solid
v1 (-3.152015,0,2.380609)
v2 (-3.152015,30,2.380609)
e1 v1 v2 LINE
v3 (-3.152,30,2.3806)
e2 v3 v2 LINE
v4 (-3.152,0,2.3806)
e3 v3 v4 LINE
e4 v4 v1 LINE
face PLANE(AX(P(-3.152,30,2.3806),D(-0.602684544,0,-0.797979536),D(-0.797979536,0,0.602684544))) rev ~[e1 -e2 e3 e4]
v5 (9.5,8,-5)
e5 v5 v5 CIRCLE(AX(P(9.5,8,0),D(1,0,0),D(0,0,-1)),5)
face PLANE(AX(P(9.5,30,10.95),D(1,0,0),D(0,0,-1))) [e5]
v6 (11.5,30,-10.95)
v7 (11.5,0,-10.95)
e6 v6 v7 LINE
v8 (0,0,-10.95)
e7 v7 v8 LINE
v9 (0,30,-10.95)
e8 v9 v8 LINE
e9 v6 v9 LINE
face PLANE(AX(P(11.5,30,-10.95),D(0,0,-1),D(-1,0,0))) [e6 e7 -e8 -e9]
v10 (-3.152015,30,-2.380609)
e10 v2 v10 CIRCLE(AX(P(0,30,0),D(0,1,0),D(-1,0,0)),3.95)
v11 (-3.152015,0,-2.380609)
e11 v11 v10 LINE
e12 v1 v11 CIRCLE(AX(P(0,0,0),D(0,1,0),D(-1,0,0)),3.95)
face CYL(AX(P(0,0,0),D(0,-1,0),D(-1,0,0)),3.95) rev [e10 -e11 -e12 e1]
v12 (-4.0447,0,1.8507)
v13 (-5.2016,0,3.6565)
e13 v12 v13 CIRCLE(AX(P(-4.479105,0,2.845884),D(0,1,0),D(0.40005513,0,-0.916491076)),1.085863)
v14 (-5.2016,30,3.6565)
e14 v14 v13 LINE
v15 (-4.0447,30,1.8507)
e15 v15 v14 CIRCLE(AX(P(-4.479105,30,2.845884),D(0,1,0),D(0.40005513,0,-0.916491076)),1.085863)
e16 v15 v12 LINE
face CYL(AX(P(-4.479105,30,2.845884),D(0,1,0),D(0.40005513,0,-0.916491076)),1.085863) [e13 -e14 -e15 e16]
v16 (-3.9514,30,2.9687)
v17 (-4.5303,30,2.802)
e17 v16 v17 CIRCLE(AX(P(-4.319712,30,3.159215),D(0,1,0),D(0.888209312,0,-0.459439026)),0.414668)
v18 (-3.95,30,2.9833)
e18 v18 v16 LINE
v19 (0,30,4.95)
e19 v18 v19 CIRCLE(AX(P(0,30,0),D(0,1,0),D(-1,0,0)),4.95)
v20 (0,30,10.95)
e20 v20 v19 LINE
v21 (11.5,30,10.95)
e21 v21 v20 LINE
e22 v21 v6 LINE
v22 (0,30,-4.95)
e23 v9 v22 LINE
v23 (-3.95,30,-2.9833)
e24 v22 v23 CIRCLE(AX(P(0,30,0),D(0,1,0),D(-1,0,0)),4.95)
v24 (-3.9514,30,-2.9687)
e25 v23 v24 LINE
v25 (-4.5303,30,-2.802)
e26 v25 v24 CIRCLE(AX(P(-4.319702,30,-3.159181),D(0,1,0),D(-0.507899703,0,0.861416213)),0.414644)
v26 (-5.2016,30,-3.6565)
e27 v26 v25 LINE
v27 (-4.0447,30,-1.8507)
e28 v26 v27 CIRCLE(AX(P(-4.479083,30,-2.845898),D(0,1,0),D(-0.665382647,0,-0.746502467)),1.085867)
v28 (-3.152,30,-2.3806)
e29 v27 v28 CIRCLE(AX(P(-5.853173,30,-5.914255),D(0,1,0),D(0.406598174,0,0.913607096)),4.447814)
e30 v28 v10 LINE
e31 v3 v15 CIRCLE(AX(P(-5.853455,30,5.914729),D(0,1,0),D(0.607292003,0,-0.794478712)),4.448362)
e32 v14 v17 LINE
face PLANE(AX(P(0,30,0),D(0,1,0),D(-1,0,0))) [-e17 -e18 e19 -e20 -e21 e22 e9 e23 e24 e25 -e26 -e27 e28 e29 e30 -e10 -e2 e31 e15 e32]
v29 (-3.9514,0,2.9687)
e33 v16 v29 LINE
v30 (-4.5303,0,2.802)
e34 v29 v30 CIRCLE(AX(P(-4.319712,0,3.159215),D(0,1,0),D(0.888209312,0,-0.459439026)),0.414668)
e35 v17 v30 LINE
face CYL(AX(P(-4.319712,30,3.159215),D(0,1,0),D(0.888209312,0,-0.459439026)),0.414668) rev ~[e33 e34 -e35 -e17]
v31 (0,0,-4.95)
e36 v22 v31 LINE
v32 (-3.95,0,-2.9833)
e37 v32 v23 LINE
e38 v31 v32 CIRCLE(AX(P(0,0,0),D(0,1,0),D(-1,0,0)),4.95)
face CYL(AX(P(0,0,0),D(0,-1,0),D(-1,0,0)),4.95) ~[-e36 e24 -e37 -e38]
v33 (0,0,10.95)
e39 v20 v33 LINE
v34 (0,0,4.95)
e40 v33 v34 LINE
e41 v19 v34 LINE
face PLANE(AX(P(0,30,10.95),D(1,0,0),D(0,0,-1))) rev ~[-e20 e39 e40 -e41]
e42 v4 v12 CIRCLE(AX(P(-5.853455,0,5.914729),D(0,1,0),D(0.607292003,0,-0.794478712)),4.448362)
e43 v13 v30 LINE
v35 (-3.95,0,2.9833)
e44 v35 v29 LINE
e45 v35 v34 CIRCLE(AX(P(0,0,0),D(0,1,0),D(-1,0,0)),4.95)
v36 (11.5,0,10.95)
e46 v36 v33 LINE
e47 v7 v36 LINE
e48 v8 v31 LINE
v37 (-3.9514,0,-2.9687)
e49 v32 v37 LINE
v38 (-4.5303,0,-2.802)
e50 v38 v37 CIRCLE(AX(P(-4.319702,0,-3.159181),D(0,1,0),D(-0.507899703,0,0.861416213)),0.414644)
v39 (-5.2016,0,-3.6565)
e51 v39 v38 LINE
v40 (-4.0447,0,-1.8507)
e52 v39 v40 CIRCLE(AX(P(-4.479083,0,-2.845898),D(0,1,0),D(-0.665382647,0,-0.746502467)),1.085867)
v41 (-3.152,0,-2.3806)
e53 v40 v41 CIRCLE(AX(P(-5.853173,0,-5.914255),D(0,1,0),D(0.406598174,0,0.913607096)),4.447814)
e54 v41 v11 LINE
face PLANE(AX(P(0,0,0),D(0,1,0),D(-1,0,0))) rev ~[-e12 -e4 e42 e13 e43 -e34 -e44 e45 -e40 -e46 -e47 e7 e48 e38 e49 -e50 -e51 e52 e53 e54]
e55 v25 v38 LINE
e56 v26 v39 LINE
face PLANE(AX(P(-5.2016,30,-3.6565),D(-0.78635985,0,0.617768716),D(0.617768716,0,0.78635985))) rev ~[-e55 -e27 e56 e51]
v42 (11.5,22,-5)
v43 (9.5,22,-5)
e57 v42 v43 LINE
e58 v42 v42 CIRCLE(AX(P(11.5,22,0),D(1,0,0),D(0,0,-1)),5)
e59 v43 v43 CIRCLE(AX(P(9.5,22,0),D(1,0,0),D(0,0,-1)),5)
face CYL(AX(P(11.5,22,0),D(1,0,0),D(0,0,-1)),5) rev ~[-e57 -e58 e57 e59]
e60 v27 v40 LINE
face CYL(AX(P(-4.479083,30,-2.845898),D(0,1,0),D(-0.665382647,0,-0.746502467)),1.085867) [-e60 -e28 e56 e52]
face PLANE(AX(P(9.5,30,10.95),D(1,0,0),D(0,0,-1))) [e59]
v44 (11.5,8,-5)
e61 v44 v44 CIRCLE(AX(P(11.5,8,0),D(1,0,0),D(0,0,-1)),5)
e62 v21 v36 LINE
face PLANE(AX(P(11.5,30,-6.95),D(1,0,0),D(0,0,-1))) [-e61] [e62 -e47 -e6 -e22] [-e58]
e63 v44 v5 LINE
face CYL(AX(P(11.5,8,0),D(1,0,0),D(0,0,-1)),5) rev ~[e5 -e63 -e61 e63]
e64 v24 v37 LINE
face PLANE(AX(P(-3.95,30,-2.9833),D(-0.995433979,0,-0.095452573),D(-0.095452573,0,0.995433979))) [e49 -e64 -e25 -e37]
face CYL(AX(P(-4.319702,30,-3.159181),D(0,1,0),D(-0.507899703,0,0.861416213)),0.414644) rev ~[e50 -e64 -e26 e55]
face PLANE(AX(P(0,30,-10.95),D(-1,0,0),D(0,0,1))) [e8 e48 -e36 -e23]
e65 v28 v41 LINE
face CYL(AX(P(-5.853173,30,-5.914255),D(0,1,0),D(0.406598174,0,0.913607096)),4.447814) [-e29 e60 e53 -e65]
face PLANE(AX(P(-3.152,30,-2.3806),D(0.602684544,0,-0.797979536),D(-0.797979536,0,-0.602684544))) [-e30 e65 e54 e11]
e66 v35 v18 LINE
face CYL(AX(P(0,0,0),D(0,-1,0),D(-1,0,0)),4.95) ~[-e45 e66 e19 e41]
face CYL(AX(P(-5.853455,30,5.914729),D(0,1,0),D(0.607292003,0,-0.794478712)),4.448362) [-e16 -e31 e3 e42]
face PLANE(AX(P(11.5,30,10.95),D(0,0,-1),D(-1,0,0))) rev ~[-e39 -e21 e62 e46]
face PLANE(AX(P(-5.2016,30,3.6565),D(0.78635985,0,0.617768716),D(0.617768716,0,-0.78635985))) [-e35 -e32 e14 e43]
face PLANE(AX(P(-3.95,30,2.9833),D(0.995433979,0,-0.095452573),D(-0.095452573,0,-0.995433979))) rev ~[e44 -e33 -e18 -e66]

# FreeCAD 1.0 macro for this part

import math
import FreeCAD as App
import Part
import Sketcher
from FreeCAD import Vector
Q = App.Units.Quantity

doc = App.newDocument("Part")
body = doc.addObject("PartDesign::Body", "Body")

# Sketch on XZ plane
sketch1 = body.newObject("Sketcher::SketchObject", "Sketch")
sketch1.AttachmentSupport = (doc.getObject("XZ_Plane"), [""])
sketch1.MapMode = "FlatFace"
sketch1.addGeometry([
    Part.ArcOfCircle(Part.Circle(Vector(0, 0, 0), Vector(0, 0, 1), 4), math.radians(-143), math.radians(143)),
    Part.LineSegment(Vector(-3.2, 2.4, 0), Vector(-4, 3, 0)),
    Part.ArcOfCircle(Part.Circle(Vector(0, 0, 0), Vector(0, 0, 1), 5), math.radians(-143), math.radians(143)),
    Part.LineSegment(Vector(-4, -3, 0), Vector(-3.2, -2.4, 0)),
], False)
sketch1.addConstraint([
    Sketcher.Constraint("Coincident", 0, 2, 1, 1),
    Sketcher.Constraint("Coincident", 1, 2, 2, 2),
    Sketcher.Constraint("Coincident", 2, 1, 3, 1),
    Sketcher.Constraint("Coincident", 3, 2, 0, 1),
    Sketcher.Constraint("Coincident", 0, 3, -1, 1),
    Sketcher.Constraint("Coincident", 2, 3, -1, 1),
    Sketcher.Constraint("Vertical", 1, 2, 2, 1),
    Sketcher.Constraint("Vertical", 0, 2, 3, 2),
    Sketcher.Constraint("Radius", 0, Q("3.95 mm")),
    Sketcher.Constraint("Radius", 2, Q("4.95 mm")),
    Sketcher.Constraint("DistanceX", 1, 2, -1, 1, Q("3.95 mm")),
    Sketcher.Constraint("DistanceX", 0, 2, -1, 1, Q("3.152 mm")),
])
pad1 = body.newObject("PartDesign::Pad", "Pad")
pad1.Profile = sketch1
pad1.Length = 30
pad1.Reversed = True

# Sketch on XZ plane
sketch2 = body.newObject("Sketcher::SketchObject", "Sketch001")
sketch2.AttachmentSupport = (doc.getObject("XZ_Plane"), [""])
sketch2.MapMode = "FlatFace"
sketch2.AttachmentOffset = App.Placement(Vector(0, 0, -30), App.Rotation())
sketch2.addGeometry([
    Part.LineSegment(Vector(-3.95, 2.983, 0), Vector(-3.152, 2.381, 0)),  # 0
    Part.ArcOfCircle(Part.Circle(Vector(-5.853, 5.915, 0), Vector(0, 0, 1), 4.448), math.radians(-66.01), math.radians(-52.61)),  # 1
    Part.ArcOfCircle(Part.Circle(Vector(-4.479, 2.846, 0), Vector(0, 0, 1), 1.086), math.radians(132), math.radians(294)),  # 2
    Part.LineSegment(Vector(-5.202, 3.656, 0), Vector(-4.53, 2.802, 0)),  # 3
    Part.ArcOfCircle(Part.Circle(Vector(-4.32, 3.159, 0), Vector(0, 0, 1), 0.415), math.radians(-121), math.radians(-27)),  # 4
    Part.LineSegment(Vector(-3.951, 2.969, 0), Vector(-3.95, 2.983, 0)),  # 5
    Part.ArcOfCircle(Part.Circle(Vector(-4.479, -2.846, 0), Vector(0, 0, 1), 1.086), math.radians(66), math.radians(228)),  # 6
    Part.ArcOfCircle(Part.Circle(Vector(-5.853, -5.915, 0), Vector(0, 0, 1), 4.448), math.radians(52.61), math.radians(66.01)),  # 7
    Part.LineSegment(Vector(-3.152, -2.381, 0), Vector(-3.95, -2.983, 0)),  # 8
    Part.LineSegment(Vector(-3.95, -2.983, 0), Vector(-3.951, -2.969, 0)),  # 9
    Part.ArcOfCircle(Part.Circle(Vector(-4.32, -3.159, 0), Vector(0, 0, 1), 0.415), math.radians(27), math.radians(121)),  # 10
    Part.LineSegment(Vector(-4.53, -2.802, 0), Vector(-5.202, -3.656, 0)),  # 11
], False)
sketch2.addConstraint([
    Sketcher.Constraint("Coincident", 0, 2, 1, 2),
    Sketcher.Constraint("Coincident", 1, 1, 2, 2),
    Sketcher.Constraint("Coincident", 2, 1, 3, 1),
    Sketcher.Constraint("Coincident", 3, 2, 4, 1),
    Sketcher.Constraint("Coincident", 4, 2, 5, 1),
    Sketcher.Constraint("Coincident", 5, 2, 0, 1),
    Sketcher.Constraint("Coincident", 6, 1, 7, 2),
    Sketcher.Constraint("Coincident", 7, 1, 8, 1),
    Sketcher.Constraint("Coincident", 8, 2, 9, 1),
    Sketcher.Constraint("Coincident", 9, 2, 10, 1),
    Sketcher.Constraint("Coincident", 10, 2, 11, 1),
    Sketcher.Constraint("Coincident", 11, 2, 6, 2),
    Sketcher.Constraint("Equal", 2, 6),
    Sketcher.Constraint("Equal", 1, 7),
    Sketcher.Constraint("Equal", 4, 10),
    Sketcher.Constraint("Symmetric", 2, 3, 6, 3, -1),
    Sketcher.Constraint("Symmetric", 1, 3, 7, 3, -1),
    Sketcher.Constraint("Symmetric", 4, 3, 10, 3, -1),
    Sketcher.Constraint("Symmetric", 5, 2, 8, 2, -1),
    Sketcher.Constraint("Vertical", 0, 2, 7, 1),
    Sketcher.Constraint("Vertical", 4, 2, 9, 2),
    Sketcher.Constraint("Vertical", 3, 2, 10, 2),
    Sketcher.Constraint("Vertical", 2, 1, 11, 2),
    Sketcher.Constraint("Distance", 0, Q("1 mm")),
    Sketcher.Constraint("Radius", 1, Q("4.448 mm")),
    Sketcher.Constraint("Radius", 2, Q("1.0859 mm")),
    Sketcher.Constraint("Radius", 4, Q("0.4147 mm")),
    Sketcher.Constraint("DistanceX", 5, 2, -1, 1, Q("3.95 mm")),
    Sketcher.Constraint("DistanceY", 1, 1, 0, 2, Q("0.53 mm")),
    Sketcher.Constraint("DistanceX", 2, 3, -1, 1, Q("4.479 mm")),
    Sketcher.Constraint("DistanceY", -1, 1, 2, 3, Q("2.846 mm")),
    Sketcher.Constraint("DistanceX", 0, 2, -1, 1, Q("3.152 mm")),
    Sketcher.Constraint("DistanceY", -1, 1, 3, 2, Q("2.802 mm")),
    Sketcher.Constraint("DistanceY", 6, 3, 4, 3, Q("6.005 mm")),
    Sketcher.Constraint("DistanceY", 7, 3, 1, 3, Q("11.829 mm")),
    Sketcher.Constraint("DistanceX", 4, 3, 1, 1, Q("0.275 mm")),
    Sketcher.Constraint("DistanceX", 2, 1, 4, 3, Q("0.882 mm")),
    Sketcher.Constraint("DistanceX", 3, 2, 4, 2, Q("0.579 mm")),
])
pad2 = body.newObject("PartDesign::Pad", "Pad001")
pad2.Profile = sketch2
pad2.Length = 30

# Sketch on XZ plane
sketch3 = body.newObject("Sketcher::SketchObject", "Sketch002")
sketch3.AttachmentSupport = (doc.getObject("XZ_Plane"), [""])
sketch3.MapMode = "FlatFace"
sketch3.AttachmentOffset = App.Placement(Vector(0, 0, -30), App.Rotation())
sketch3.addGeometry([
    Part.ArcOfCircle(Part.Circle(Vector(0, 0, 0), Vector(0, 0, 1), 5), math.radians(-90), math.radians(90)),  # 0
    Part.LineSegment(Vector(0, 5, 0), Vector(0, 10.9, 0)),  # 1
    Part.LineSegment(Vector(0, 10.9, 0), Vector(11.5, 10.9, 0)),  # 2
    Part.LineSegment(Vector(11.5, 10.9, 0), Vector(11.5, -10.9, 0)),  # 3
    Part.LineSegment(Vector(11.5, -10.9, 0), Vector(0, -10.9, 0)),  # 4
    Part.LineSegment(Vector(0, -10.9, 0), Vector(0, -5, 0)),  # 5
], False)
sketch3.addConstraint([
    Sketcher.Constraint("Coincident", 0, 2, 1, 1),
    Sketcher.Constraint("Coincident", 1, 2, 2, 1),
    Sketcher.Constraint("Coincident", 2, 2, 3, 1),
    Sketcher.Constraint("Coincident", 3, 2, 4, 1),
    Sketcher.Constraint("Coincident", 4, 2, 5, 1),
    Sketcher.Constraint("Coincident", 5, 2, 0, 1),
    Sketcher.Constraint("Vertical", 1),
    Sketcher.Constraint("Horizontal", 2),
    Sketcher.Constraint("Vertical", 3),
    Sketcher.Constraint("Horizontal", 4),
    Sketcher.Constraint("Vertical", 5),
    Sketcher.Constraint("Coincident", 0, 3, -1, 1),
    Sketcher.Constraint("Symmetric", 1, 2, 4, 2, -1, 1),
    Sketcher.Constraint("PointOnObject", 0, 2, -2),
    Sketcher.Constraint("DistanceX", 2, 1, 2, 2, Q("11.5 mm")),
    Sketcher.Constraint("DistanceY", 3, 2, 3, 1, Q("21.9 mm")),
    Sketcher.Constraint("DistanceY", 1, 1, 1, 2, Q("6 mm")),
])
pad3 = body.newObject("PartDesign::Pad", "Pad002")
pad3.Profile = sketch3
pad3.Length = 30

# Sketch on YZ plane
sketch4 = body.newObject("Sketcher::SketchObject", "Sketch003")
sketch4.AttachmentSupport = (doc.getObject("YZ_Plane"), [""])
sketch4.MapMode = "FlatFace"
sketch4.AttachmentOffset = App.Placement(Vector(0, 0, 11.5), App.Rotation())
sketch4.addGeometry([
    Part.Circle(Vector(8, 0, 0), Vector(0, 0, 1), 5),
    Part.Circle(Vector(22, 0, 0), Vector(0, 0, 1), 5),
], False)
sketch4.addConstraint([
    Sketcher.Constraint("Equal", 0, 1),
    Sketcher.Constraint("PointOnObject", 0, 3, -1),
    Sketcher.Constraint("PointOnObject", 1, 3, -1),
    Sketcher.Constraint("Diameter", 0, Q("10 mm")),
    Sketcher.Constraint("DistanceX", -1, 1, 0, 3, Q("8 mm")),
    Sketcher.Constraint("DistanceX", -1, 1, 1, 3, Q("22 mm")),
])
pocket1 = body.newObject("PartDesign::Pocket", "Pocket")
pocket1.Profile = sketch4
pocket1.Length = 2

doc.recompute()
